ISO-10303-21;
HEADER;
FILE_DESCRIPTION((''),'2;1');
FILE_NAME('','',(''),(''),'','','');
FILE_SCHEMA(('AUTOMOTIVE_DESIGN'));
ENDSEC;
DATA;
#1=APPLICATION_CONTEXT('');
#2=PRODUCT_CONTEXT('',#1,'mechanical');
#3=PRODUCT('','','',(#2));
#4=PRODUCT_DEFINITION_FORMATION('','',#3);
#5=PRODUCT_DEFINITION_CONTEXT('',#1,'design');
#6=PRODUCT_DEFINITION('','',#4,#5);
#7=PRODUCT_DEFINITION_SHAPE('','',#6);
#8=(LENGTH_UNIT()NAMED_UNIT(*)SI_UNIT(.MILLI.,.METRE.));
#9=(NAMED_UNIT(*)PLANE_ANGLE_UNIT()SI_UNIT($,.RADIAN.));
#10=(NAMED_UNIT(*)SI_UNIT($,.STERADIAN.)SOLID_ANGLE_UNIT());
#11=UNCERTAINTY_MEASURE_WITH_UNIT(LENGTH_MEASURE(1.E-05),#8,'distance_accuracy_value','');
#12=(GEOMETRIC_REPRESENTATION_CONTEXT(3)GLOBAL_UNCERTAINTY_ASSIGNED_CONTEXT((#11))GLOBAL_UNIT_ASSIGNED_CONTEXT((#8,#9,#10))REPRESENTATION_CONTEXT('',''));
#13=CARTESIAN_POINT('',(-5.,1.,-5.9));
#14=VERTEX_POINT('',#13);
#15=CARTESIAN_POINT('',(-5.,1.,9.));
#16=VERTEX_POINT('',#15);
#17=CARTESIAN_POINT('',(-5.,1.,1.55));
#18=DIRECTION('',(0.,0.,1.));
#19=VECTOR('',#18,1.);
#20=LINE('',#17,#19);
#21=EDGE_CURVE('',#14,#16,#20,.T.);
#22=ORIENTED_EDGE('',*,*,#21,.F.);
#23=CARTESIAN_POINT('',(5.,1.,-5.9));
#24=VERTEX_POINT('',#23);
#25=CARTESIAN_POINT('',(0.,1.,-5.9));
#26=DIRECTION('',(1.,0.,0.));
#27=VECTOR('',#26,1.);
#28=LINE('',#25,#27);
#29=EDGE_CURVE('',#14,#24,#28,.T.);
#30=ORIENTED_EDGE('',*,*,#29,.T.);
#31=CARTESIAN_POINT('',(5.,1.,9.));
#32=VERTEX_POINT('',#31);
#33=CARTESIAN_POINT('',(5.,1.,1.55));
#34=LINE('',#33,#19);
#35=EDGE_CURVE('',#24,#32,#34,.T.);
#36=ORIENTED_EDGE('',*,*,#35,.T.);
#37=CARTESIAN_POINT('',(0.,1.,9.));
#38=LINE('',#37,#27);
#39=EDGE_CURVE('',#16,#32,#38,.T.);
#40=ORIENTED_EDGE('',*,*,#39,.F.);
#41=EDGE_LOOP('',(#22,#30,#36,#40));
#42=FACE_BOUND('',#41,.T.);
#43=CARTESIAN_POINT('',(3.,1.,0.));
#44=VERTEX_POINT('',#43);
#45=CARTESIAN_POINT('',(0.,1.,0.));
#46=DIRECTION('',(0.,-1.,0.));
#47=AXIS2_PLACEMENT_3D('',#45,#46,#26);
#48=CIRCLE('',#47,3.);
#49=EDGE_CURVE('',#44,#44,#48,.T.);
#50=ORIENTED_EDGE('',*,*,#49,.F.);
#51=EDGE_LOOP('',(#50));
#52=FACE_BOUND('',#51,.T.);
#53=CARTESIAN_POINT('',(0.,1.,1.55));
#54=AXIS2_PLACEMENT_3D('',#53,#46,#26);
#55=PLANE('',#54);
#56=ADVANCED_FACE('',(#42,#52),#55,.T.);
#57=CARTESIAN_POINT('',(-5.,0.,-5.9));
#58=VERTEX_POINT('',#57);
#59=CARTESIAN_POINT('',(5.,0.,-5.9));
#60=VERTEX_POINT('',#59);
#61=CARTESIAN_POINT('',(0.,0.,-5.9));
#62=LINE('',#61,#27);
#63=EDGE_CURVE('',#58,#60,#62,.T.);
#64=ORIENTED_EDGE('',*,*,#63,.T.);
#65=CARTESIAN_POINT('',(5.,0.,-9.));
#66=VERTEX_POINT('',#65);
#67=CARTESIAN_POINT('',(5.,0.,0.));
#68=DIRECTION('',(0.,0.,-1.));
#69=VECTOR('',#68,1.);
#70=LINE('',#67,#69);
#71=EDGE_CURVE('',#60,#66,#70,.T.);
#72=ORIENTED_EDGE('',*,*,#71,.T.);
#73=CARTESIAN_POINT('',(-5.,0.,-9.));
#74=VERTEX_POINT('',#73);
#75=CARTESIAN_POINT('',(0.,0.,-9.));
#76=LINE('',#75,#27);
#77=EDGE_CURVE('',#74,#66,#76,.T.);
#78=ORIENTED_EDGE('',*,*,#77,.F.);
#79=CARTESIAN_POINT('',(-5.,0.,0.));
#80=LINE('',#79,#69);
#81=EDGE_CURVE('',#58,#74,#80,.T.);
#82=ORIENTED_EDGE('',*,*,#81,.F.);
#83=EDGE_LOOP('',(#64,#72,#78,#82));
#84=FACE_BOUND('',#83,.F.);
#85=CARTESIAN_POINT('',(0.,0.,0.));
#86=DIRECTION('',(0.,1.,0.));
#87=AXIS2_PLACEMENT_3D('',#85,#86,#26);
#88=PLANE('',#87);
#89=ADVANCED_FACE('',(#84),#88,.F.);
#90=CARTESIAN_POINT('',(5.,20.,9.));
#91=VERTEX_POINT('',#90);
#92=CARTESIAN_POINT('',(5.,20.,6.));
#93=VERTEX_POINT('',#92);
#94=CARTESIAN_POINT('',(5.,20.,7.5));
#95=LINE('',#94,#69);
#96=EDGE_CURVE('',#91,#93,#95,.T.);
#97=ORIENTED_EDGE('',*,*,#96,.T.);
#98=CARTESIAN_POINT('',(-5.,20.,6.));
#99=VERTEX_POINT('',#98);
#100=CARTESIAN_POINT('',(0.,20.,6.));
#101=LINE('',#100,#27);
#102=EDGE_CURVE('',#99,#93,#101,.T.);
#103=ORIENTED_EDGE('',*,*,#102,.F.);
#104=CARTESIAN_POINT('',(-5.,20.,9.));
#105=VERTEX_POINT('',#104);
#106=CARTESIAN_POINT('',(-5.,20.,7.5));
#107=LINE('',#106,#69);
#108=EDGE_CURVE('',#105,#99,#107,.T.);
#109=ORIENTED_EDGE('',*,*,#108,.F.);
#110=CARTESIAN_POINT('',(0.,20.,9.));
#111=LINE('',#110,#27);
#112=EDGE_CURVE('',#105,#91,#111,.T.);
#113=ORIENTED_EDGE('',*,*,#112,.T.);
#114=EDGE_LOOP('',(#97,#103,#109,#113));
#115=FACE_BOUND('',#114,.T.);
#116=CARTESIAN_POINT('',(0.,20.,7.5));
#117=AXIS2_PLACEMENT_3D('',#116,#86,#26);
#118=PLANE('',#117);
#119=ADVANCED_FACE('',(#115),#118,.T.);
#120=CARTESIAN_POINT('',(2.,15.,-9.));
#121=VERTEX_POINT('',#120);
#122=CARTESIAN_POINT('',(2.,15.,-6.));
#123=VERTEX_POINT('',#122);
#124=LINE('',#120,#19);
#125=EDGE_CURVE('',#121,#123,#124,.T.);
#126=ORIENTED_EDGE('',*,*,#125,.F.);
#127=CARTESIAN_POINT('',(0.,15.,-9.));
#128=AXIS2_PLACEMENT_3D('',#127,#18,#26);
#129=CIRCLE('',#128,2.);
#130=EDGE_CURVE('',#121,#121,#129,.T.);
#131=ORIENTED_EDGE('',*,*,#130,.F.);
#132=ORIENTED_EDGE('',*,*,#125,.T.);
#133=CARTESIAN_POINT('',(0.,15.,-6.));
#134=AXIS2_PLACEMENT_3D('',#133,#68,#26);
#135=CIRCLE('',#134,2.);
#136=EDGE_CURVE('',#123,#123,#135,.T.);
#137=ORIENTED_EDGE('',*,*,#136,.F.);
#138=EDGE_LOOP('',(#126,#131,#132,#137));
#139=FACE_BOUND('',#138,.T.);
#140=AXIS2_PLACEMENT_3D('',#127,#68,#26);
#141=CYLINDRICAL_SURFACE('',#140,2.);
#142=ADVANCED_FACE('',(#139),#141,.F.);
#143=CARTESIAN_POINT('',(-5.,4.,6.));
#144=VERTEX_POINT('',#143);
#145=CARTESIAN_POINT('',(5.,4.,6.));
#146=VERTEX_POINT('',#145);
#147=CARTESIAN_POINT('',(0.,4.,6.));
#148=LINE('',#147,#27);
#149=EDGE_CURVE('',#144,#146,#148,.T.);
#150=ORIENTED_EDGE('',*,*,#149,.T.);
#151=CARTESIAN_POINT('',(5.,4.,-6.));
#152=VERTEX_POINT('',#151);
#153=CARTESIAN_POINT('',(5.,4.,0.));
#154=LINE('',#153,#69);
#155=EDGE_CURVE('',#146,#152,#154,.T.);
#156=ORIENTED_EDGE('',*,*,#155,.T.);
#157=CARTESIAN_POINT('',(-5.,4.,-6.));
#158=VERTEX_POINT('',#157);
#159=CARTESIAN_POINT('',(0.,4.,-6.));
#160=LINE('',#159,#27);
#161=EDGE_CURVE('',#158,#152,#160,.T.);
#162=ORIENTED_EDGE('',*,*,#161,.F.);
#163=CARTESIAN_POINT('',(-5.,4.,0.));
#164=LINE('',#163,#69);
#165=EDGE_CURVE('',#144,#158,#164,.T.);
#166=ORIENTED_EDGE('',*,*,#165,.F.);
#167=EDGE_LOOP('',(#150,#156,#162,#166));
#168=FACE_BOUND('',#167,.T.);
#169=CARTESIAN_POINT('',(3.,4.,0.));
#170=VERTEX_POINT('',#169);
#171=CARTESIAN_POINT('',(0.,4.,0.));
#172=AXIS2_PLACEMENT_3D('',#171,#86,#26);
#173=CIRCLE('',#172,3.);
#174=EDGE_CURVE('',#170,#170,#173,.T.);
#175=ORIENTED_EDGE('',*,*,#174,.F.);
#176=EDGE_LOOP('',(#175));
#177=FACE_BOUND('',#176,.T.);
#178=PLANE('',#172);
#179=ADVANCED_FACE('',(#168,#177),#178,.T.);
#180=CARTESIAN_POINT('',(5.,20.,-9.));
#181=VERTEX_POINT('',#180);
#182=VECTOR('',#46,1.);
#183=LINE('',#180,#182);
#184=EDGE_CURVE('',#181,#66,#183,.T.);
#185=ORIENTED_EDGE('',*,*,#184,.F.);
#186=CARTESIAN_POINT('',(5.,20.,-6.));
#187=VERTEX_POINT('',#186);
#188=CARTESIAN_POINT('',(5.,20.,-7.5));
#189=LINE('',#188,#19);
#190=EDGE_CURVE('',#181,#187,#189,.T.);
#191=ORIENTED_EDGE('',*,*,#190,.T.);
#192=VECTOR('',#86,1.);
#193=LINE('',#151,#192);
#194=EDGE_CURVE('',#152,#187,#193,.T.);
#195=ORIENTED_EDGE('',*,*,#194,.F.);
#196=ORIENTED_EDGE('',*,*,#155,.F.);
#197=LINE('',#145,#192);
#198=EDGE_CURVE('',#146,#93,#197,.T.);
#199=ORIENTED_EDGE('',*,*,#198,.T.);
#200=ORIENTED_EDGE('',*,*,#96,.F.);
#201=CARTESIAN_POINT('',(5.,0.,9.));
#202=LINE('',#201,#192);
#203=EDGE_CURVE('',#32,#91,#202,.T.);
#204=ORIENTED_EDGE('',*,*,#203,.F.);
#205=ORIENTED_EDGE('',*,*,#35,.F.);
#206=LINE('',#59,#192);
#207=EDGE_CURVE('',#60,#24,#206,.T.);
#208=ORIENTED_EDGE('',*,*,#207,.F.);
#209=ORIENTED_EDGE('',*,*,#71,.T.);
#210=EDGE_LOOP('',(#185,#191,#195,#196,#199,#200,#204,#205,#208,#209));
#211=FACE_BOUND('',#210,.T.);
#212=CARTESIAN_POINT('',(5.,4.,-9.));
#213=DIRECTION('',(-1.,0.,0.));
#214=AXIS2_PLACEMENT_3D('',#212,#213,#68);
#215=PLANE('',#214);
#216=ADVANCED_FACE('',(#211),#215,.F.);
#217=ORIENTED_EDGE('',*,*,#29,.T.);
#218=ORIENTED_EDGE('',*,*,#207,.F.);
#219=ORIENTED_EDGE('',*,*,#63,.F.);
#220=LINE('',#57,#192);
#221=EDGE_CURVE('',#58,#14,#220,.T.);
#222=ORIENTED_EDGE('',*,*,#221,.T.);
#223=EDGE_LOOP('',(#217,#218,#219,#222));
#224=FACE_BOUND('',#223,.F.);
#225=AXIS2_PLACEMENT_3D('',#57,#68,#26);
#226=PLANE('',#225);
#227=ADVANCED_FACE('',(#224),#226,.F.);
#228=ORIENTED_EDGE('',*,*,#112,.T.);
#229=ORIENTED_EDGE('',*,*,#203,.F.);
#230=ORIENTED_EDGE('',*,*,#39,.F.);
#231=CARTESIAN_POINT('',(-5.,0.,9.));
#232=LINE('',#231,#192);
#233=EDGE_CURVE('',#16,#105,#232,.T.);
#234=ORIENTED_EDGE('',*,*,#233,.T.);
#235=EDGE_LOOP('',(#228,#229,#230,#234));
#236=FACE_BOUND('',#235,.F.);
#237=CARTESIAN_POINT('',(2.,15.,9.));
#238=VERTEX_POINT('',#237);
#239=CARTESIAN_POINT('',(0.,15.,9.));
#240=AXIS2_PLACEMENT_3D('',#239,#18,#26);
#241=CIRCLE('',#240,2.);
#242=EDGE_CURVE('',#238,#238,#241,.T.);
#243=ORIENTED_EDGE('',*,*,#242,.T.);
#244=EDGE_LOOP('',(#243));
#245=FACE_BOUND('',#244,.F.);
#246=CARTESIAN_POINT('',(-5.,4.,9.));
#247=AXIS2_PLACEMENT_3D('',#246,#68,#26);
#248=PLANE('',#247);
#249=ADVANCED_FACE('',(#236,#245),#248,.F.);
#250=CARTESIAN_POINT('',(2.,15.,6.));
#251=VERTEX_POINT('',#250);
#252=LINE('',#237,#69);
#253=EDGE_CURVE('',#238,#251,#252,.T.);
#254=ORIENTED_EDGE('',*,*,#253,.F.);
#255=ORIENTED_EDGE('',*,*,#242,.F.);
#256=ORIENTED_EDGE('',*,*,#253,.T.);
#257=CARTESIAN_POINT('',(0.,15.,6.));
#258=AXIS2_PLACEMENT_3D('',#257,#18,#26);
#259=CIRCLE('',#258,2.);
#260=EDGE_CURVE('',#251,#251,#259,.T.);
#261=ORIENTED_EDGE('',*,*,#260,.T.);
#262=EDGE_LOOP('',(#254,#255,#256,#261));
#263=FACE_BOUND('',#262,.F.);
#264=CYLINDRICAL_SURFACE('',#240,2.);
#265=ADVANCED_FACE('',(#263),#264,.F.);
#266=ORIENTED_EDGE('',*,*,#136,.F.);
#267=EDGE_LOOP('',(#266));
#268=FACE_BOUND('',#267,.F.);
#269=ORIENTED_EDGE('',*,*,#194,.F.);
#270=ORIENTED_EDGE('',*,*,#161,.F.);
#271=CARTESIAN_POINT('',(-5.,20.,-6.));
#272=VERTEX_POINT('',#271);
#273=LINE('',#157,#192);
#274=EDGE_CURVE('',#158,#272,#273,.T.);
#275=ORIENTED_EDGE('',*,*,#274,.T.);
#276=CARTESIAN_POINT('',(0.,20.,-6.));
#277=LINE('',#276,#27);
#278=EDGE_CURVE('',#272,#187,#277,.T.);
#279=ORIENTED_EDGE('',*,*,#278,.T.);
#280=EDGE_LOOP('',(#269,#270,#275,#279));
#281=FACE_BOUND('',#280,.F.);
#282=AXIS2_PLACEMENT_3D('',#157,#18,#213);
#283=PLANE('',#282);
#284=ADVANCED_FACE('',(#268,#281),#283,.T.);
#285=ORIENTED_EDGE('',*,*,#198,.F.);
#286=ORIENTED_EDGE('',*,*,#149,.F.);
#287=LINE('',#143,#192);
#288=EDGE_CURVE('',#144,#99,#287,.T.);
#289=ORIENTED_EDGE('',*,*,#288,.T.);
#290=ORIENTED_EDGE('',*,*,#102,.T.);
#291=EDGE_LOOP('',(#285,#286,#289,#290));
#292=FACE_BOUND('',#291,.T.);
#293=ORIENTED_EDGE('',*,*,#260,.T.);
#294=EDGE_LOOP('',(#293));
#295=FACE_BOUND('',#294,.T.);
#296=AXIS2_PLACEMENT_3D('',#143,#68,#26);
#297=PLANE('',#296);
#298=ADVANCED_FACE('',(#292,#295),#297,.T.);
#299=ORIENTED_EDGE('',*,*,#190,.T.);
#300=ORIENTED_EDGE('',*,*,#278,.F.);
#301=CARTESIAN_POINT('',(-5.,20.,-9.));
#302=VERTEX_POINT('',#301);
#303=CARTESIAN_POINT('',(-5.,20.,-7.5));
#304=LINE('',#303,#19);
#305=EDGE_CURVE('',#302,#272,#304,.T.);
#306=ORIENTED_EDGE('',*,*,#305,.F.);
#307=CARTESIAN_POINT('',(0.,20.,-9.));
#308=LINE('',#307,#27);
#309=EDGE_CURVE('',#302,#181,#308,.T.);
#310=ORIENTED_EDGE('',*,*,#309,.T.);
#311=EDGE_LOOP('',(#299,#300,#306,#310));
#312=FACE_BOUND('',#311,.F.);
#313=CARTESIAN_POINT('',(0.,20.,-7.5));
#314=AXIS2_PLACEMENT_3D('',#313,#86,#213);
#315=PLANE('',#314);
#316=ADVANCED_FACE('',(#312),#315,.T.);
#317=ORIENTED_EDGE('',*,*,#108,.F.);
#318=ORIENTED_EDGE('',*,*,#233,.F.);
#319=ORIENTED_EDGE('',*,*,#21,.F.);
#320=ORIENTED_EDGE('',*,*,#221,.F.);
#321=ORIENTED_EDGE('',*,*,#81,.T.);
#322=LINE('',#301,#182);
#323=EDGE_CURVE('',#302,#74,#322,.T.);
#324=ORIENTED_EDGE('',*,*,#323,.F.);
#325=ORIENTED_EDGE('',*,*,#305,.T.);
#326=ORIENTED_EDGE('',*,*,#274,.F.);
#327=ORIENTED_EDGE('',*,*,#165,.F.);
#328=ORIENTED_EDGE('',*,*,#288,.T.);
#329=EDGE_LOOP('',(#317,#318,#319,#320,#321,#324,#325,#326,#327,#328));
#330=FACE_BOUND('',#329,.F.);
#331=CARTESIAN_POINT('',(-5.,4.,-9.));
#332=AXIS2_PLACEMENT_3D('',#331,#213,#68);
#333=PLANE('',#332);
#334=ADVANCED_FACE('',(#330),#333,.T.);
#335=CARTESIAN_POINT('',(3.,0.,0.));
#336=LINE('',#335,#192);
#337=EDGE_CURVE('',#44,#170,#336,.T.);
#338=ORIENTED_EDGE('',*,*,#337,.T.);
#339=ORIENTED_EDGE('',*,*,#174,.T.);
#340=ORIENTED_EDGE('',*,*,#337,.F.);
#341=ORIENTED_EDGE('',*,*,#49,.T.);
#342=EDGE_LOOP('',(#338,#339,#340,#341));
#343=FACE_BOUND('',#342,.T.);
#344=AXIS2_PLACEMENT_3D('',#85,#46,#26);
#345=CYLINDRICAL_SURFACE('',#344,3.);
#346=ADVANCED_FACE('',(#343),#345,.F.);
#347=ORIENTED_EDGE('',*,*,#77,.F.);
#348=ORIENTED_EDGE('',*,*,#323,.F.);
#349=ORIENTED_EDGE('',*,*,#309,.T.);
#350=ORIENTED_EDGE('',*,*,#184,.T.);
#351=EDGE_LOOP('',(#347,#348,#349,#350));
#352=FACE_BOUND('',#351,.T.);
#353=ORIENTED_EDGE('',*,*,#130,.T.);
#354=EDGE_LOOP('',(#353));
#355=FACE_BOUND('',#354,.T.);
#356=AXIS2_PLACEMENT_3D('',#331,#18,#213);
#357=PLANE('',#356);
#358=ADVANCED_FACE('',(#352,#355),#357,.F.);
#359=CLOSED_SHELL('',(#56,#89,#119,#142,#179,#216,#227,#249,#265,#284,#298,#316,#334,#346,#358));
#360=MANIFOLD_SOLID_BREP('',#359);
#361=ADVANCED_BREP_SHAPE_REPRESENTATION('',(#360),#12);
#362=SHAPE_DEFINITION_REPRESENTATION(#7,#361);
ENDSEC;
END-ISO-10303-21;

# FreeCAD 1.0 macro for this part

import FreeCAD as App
import Part
import Sketcher


def add_polygon(sketch, points):
    """Adds a closed chain of lines whose ends are joined by coincident constraints."""
    first, n = sketch.GeometryCount, len(points)
    for a, b in zip(points, points[1:] + points[:1]):
        sketch.addGeometry(Part.LineSegment(App.Vector(*a, 0), App.Vector(*b, 0)), False)
    for i in range(n):
        sketch.addConstraint(Sketcher.Constraint("Coincident", first + i, 2, first + (i + 1) % n, 1))

doc = App.newDocument("Part")
body = doc.addObject("PartDesign::Body", "Body")

# Sketch on XZ plane
sketch1 = body.newObject("Sketcher::SketchObject", "Sketch")
sketch1.AttachmentSupport = (doc.getObject("XZ_Plane"), [""])
sketch1.MapMode = "FlatFace"
add_polygon(sketch1, [(-5, -9), (-5, 9), (5, 9), (5, -9)])  # lines 0-3
sketch1.addGeometry(Part.Circle(App.Vector(0, 0, 0), App.Vector(0, 0, 1), 3), False)  # 4
sketch1.addConstraint([
    Sketcher.Constraint("Vertical", 0),
    Sketcher.Constraint("Horizontal", 1),
    Sketcher.Constraint("Vertical", 2),
    Sketcher.Constraint("Horizontal", 3),
    Sketcher.Constraint("Coincident", 4, 3, -1, 1),
    Sketcher.Constraint("Symmetric", 0, 2, 2, 2, -1, 1),
    Sketcher.Constraint("Diameter", 4, 6.0),
    Sketcher.Constraint("DistanceX", 1, 1, 1, 2, 10.0),
    Sketcher.Constraint("DistanceY", 0, 1, 0, 2, 18.0),
])
pad1 = body.newObject("PartDesign::Pad", "Pad")
pad1.Profile = sketch1
pad1.Length = 4
pad1.Reversed = True

# Sketch on XZ plane
sketch2 = body.newObject("Sketcher::SketchObject", "Sketch001")
sketch2.AttachmentSupport = (doc.getObject("XZ_Plane"), [""])
sketch2.MapMode = "FlatFace"
sketch2.AttachmentOffset = App.Placement(App.Vector(0, 0, -4), App.Rotation())
add_polygon(sketch2, [(-5, 6), (-5, 9), (5, 9), (5, 6)])  # lines 0-3
sketch2.addConstraint([
    Sketcher.Constraint("Vertical", 0),
    Sketcher.Constraint("Horizontal", 1),
    Sketcher.Constraint("Vertical", 2),
    Sketcher.Constraint("Horizontal", 3),
    Sketcher.Constraint("DistanceX", 1, 1, 1, 2, 10.0),
    Sketcher.Constraint("DistanceY", 0, 1, 0, 2, 3.0),
    Sketcher.Constraint("DistanceX", 0, 2, -1, 1, 5.0),
    Sketcher.Constraint("DistanceY", -1, 1, 0, 2, 9.0),
])
pad2 = body.newObject("PartDesign::Pad", "Pad001")
pad2.Profile = sketch2
pad2.Length = 16
pad2.Reversed = True

# Sketch on XY plane
sketch3 = body.newObject("Sketcher::SketchObject", "Sketch002")
sketch3.AttachmentSupport = (doc.getObject("XY_Plane"), [""])
sketch3.MapMode = "FlatFace"
sketch3.AttachmentOffset = App.Placement(App.Vector(0, 0, 9), App.Rotation())
sketch3.addGeometry(Part.Circle(App.Vector(0, 15, 0), App.Vector(0, 0, 1), 2), False)
sketch3.addConstraint([
    Sketcher.Constraint("PointOnObject", 0, 3, -2),
    Sketcher.Constraint("Diameter", 0, 4.0),
    Sketcher.Constraint("DistanceY", -1, 1, 0, 3, 15.0),
])
pocket1 = body.newObject("PartDesign::Pocket", "Pocket")
pocket1.Profile = sketch3
pocket1.Type = "ThroughAll"
doc.recompute()

mirrored = body.newObject("PartDesign::Mirrored", "Mirrored")
mirrored.Originals = [pad2, pocket1]
mirrored.MirrorPlane = (doc.getObject("XY_Plane"), [""])
body.Tip = mirrored

# Sketch on XZ plane
sketch4 = body.newObject("Sketcher::SketchObject", "Sketch003")
sketch4.AttachmentSupport = (doc.getObject("XZ_Plane"), [""])
sketch4.MapMode = "FlatFace"
add_polygon(sketch4, [(-5, 9), (-5, -5.9), (5, -5.9), (5, 9)])  # lines 0-3
sketch4.addConstraint([
    Sketcher.Constraint("Vertical", 0),
    Sketcher.Constraint("Horizontal", 1),
    Sketcher.Constraint("Vertical", 2),
    Sketcher.Constraint("Horizontal", 3),
    Sketcher.Constraint("DistanceX", 1, 1, 1, 2, 10.0),
    Sketcher.Constraint("DistanceY", 0, 2, 0, 1, 14.9),
    Sketcher.Constraint("DistanceX", 0, 2, -1, 1, 5.0),
    Sketcher.Constraint("DistanceY", -1, 1, 2, 2, 9.0),
])
pocket2 = body.newObject("PartDesign::Pocket", "Pocket001")
pocket2.Profile = sketch4
pocket2.Length = 1

doc.recompute()
